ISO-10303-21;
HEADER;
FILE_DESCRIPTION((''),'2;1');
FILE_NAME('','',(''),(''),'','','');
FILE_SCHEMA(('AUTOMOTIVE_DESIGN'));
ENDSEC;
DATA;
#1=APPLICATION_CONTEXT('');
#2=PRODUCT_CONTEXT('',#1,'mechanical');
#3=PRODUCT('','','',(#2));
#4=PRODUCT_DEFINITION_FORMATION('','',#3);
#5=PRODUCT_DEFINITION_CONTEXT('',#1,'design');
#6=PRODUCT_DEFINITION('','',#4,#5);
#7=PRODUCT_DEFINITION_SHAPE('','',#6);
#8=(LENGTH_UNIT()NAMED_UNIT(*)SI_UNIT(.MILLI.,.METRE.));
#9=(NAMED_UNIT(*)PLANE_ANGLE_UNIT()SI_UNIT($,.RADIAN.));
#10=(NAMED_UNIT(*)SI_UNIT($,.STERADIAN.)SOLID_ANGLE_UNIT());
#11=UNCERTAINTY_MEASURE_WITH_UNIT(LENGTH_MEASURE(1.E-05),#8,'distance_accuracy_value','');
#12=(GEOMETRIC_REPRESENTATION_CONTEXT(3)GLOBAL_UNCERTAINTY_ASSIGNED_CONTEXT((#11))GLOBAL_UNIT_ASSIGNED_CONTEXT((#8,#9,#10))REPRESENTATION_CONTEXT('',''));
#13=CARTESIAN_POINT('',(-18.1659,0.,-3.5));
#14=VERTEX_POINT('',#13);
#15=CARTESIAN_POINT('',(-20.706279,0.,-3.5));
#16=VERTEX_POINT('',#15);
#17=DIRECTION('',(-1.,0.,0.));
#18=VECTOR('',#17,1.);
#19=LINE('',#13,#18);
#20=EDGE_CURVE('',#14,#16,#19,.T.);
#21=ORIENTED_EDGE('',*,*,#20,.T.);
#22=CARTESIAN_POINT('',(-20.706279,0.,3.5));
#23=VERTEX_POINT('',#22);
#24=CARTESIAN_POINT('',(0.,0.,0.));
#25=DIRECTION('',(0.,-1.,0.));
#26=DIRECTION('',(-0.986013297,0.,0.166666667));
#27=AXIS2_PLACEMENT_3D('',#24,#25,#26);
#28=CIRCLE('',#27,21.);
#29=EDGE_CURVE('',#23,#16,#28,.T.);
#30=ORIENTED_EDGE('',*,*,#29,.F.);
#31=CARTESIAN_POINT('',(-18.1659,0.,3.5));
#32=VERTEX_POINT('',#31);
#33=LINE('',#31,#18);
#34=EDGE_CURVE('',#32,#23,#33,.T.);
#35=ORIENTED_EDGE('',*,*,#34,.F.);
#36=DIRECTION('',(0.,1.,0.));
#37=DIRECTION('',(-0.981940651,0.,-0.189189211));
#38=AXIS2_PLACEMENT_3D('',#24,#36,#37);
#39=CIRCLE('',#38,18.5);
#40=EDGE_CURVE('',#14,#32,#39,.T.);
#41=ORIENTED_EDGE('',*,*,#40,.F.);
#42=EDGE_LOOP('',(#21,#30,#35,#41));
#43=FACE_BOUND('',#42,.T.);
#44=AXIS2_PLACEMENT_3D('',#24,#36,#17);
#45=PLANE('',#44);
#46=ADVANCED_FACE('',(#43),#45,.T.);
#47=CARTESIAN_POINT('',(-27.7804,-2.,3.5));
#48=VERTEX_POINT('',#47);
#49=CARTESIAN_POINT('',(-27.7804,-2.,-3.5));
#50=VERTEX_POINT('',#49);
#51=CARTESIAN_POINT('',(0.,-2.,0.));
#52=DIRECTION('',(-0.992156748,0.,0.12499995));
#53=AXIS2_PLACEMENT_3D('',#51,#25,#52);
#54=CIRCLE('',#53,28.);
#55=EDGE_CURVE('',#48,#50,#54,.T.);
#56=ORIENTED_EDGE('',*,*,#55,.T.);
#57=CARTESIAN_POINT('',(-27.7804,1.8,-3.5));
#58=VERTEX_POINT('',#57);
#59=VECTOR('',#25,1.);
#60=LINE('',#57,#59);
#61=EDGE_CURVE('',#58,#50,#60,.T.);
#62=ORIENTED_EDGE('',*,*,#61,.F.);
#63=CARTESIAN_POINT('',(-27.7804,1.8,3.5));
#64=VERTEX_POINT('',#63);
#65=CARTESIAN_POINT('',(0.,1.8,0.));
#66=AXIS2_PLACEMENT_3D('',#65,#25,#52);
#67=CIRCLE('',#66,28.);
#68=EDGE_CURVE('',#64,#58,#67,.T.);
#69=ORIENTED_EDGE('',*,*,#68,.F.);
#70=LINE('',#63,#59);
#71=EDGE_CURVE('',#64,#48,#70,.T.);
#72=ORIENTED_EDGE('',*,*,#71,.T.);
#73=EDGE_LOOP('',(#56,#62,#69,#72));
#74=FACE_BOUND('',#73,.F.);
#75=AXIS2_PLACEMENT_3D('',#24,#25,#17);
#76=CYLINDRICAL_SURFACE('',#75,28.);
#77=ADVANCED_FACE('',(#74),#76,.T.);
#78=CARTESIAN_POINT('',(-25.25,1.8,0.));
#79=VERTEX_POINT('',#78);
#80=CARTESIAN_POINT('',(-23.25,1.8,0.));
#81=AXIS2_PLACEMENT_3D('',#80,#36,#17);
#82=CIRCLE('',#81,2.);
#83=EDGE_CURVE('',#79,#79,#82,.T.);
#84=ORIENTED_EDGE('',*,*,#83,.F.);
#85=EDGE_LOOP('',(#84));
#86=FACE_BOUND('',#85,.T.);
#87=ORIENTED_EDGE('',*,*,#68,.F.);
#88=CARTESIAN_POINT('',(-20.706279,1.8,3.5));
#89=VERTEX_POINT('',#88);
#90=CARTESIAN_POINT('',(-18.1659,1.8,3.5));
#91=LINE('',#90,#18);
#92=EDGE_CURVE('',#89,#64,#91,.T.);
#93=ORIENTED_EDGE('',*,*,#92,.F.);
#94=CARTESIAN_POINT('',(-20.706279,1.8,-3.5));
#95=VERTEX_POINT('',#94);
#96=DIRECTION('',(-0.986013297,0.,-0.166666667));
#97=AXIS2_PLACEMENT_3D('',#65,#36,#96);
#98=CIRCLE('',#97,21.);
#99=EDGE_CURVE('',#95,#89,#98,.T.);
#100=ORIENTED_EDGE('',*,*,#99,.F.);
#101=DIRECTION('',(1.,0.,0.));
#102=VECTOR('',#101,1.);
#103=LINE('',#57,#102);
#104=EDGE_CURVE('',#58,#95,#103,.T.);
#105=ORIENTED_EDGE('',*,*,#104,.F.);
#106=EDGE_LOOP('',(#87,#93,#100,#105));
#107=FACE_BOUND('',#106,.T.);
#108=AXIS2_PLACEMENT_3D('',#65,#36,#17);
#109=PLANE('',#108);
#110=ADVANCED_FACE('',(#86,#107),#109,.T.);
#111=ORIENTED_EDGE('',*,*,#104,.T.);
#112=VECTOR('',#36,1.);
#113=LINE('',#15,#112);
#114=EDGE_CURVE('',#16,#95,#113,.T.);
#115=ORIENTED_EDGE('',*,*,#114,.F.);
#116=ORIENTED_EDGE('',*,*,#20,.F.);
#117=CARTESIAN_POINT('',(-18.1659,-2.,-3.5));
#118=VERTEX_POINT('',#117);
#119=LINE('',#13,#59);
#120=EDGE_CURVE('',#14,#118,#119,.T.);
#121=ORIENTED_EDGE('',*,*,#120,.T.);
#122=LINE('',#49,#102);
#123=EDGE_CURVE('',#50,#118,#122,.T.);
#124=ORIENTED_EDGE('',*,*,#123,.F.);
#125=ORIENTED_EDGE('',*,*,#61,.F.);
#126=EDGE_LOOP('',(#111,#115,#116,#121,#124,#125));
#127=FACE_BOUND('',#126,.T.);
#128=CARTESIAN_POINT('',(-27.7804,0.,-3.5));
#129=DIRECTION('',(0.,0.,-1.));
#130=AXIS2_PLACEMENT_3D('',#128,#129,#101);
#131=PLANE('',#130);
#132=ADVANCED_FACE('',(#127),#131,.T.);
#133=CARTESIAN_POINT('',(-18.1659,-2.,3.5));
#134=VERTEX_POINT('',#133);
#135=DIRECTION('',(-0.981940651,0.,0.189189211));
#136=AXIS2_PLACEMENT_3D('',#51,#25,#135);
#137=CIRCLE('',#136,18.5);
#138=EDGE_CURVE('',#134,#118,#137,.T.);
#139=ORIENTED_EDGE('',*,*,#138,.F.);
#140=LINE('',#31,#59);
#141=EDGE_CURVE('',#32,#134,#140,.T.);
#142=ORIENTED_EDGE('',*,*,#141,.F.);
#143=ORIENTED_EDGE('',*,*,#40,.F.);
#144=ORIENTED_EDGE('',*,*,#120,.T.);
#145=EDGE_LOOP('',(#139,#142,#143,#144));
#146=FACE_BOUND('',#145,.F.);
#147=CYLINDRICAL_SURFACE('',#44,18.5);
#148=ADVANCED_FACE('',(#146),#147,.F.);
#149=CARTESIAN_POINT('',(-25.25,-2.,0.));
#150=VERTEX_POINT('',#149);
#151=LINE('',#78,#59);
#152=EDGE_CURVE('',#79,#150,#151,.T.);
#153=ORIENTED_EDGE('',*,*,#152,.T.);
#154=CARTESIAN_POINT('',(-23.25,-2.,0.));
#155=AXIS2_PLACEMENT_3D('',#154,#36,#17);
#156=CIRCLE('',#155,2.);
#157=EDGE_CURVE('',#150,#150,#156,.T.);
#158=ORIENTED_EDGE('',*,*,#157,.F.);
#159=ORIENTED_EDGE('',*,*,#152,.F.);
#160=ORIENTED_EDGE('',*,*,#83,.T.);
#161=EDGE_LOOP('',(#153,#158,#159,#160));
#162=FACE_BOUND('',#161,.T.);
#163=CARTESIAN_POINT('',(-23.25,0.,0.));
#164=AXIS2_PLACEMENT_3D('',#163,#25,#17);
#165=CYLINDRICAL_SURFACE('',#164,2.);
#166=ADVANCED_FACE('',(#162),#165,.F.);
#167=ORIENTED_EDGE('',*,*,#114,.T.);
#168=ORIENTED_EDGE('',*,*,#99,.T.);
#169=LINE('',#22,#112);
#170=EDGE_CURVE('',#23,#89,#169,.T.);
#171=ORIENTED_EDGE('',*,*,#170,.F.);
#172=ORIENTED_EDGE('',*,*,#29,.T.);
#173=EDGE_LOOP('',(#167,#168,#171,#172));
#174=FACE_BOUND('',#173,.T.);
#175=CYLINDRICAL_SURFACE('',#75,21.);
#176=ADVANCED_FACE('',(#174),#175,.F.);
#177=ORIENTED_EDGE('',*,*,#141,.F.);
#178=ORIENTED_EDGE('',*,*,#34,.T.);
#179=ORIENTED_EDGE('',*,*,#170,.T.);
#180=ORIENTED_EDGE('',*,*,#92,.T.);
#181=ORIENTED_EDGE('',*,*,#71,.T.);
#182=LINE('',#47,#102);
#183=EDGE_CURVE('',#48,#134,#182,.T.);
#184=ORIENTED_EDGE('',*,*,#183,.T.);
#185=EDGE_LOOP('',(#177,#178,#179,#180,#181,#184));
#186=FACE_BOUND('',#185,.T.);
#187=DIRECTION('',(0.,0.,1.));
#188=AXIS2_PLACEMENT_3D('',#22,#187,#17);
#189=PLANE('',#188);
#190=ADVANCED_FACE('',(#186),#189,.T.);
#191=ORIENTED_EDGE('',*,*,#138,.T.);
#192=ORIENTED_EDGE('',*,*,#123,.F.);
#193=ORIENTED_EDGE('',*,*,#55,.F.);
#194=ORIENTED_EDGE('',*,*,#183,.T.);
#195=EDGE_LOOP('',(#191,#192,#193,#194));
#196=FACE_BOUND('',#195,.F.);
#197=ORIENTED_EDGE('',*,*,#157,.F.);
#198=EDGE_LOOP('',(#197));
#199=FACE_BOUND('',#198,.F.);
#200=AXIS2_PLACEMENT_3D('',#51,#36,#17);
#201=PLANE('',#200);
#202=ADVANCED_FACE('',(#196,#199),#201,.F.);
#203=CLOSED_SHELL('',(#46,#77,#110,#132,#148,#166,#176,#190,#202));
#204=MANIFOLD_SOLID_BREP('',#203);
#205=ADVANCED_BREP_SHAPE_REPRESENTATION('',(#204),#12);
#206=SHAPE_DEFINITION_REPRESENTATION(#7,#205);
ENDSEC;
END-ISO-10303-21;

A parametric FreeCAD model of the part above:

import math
import FreeCAD as App
import Part
import Sketcher
Q = App.Units.Quantity

doc = App.newDocument("Part")
params = doc.addObject("Spreadsheet::Sheet", "Params")
for row, (alias, value) in enumerate([
    ("sketch1_diameter", "4 mm"),
    ("sketch1_radius", "21 mm"),
    ("sketch1_radius2", "28 mm"),
    ("pad1_length", "1.8 mm"),
    ("sketch2_diameter", "4 mm"),
    ("sketch2_radius", "28 mm"),
    ("sketch2_radius2", "18.5 mm"),
    ("pad2_length", "2 mm"),
], start=1):
    params.set(f"A{row}", alias)
    params.set(f"B{row}", "=" + value)
    params.setAlias(f"B{row}", alias)

body = doc.addObject("PartDesign::Body", "Body")

sketch1 = body.newObject("Sketcher::SketchObject", "Sketch")
sketch1.AttachmentSupport = (doc.getObject("XZ_Plane"), [""])
sketch1.MapMode = "FlatFace"
sketch1.addGeometry([
    Part.LineSegment(App.Vector(-27.8, 3.5, 0), App.Vector(-20.7, 3.5, 0)),
    Part.ArcOfCircle(Part.Circle(App.Vector(0, 0, 0), App.Vector(0, 0, 1), 21), math.radians(170.41), math.radians(189.59)),
    Part.LineSegment(App.Vector(-20.7, -3.5, 0), App.Vector(-27.8, -3.5, 0)),
    Part.ArcOfCircle(Part.Circle(App.Vector(0, 0, 0), App.Vector(0, 0, 1), 28), math.radians(172.82), math.radians(187.18)),
    Part.Circle(App.Vector(-23.2, 0, 0), App.Vector(0, 0, 1), 2),
], False)
sketch1.addConstraint([
    Sketcher.Constraint("Coincident", 0, 2, 1, 1),
    Sketcher.Constraint("Coincident", 1, 2, 2, 1),
    Sketcher.Constraint("Coincident", 2, 2, 3, 2),
    Sketcher.Constraint("Coincident", 3, 1, 0, 1),
    Sketcher.Constraint("Horizontal", 0),
    Sketcher.Constraint("Horizontal", 2),
    Sketcher.Constraint("Coincident", 1, 3, -1, 1),
    Sketcher.Constraint("Coincident", 3, 3, -1, 1),
    Sketcher.Constraint("PointOnObject", 4, 3, -1),
    Sketcher.Constraint("Vertical", 0, 2, 1, 2),
    Sketcher.Constraint("Diameter", 4, Q("4 mm")),
    Sketcher.Constraint("Radius", 1, Q("21 mm")),
    Sketcher.Constraint("Radius", 3, Q("28 mm")),
    Sketcher.Constraint("DistanceY", -1, 1, 0, 2, Q("3.5 mm")),
    Sketcher.Constraint("DistanceX", 4, 3, -1, 1, Q("23.25 mm")),
])
sketch1.setExpression("Constraints[10]", "Params.sketch1_diameter")
sketch1.setExpression("Constraints[11]", "Params.sketch1_radius")
sketch1.setExpression("Constraints[12]", "Params.sketch1_radius2")
pad1 = body.newObject("PartDesign::Pad", "Pad")
pad1.Profile = sketch1
pad1.setExpression("Length", "Params.pad1_length")
pad1.Reversed = True

sketch2 = body.newObject("Sketcher::SketchObject", "Sketch001")
sketch2.AttachmentSupport = (doc.getObject("XZ_Plane"), [""])
sketch2.MapMode = "FlatFace"
sketch2.addGeometry([
    Part.ArcOfCircle(Part.Circle(App.Vector(0, 0, 0), App.Vector(0, 0, 1), 18.5), math.radians(169), math.radians(191)),
    Part.LineSegment(App.Vector(-18.2, -3.5, 0), App.Vector(-27.8, -3.5, 0)),
    Part.ArcOfCircle(Part.Circle(App.Vector(0, 0, 0), App.Vector(0, 0, 1), 28), math.radians(172.82), math.radians(187.18)),
    Part.LineSegment(App.Vector(-27.8, 3.5, 0), App.Vector(-18.2, 3.5, 0)),
    Part.Circle(App.Vector(-23.2, 0, 0), App.Vector(0, 0, 1), 2),
], False)
sketch2.addConstraint([
    Sketcher.Constraint("Coincident", 0, 2, 1, 1),
    Sketcher.Constraint("Coincident", 1, 2, 2, 2),
    Sketcher.Constraint("Coincident", 2, 1, 3, 1),
    Sketcher.Constraint("Coincident", 3, 2, 0, 1),
    Sketcher.Constraint("Horizontal", 1),
    Sketcher.Constraint("Horizontal", 3),
    Sketcher.Constraint("Coincident", 0, 3, -1, 1),
    Sketcher.Constraint("Coincident", 2, 3, -1, 1),
    Sketcher.Constraint("PointOnObject", 4, 3, -1),
    Sketcher.Constraint("Vertical", 1, 2, 2, 1),
    Sketcher.Constraint("Diameter", 4, Q("4 mm")),
    Sketcher.Constraint("Radius", 2, Q("28 mm")),
    Sketcher.Constraint("Radius", 0, Q("18.5 mm")),
    Sketcher.Constraint("DistanceY", 0, 2, -1, 1, Q("3.5 mm")),
    Sketcher.Constraint("DistanceX", 4, 3, -1, 1, Q("23.25 mm")),
])
sketch2.setExpression("Constraints[10]", "Params.sketch2_diameter")
sketch2.setExpression("Constraints[11]", "Params.sketch2_radius")
sketch2.setExpression("Constraints[12]", "Params.sketch2_radius2")
pad2 = body.newObject("PartDesign::Pad", "Pad001")
pad2.Profile = sketch2
pad2.setExpression("Length", "Params.pad2_length")

doc.recompute()
